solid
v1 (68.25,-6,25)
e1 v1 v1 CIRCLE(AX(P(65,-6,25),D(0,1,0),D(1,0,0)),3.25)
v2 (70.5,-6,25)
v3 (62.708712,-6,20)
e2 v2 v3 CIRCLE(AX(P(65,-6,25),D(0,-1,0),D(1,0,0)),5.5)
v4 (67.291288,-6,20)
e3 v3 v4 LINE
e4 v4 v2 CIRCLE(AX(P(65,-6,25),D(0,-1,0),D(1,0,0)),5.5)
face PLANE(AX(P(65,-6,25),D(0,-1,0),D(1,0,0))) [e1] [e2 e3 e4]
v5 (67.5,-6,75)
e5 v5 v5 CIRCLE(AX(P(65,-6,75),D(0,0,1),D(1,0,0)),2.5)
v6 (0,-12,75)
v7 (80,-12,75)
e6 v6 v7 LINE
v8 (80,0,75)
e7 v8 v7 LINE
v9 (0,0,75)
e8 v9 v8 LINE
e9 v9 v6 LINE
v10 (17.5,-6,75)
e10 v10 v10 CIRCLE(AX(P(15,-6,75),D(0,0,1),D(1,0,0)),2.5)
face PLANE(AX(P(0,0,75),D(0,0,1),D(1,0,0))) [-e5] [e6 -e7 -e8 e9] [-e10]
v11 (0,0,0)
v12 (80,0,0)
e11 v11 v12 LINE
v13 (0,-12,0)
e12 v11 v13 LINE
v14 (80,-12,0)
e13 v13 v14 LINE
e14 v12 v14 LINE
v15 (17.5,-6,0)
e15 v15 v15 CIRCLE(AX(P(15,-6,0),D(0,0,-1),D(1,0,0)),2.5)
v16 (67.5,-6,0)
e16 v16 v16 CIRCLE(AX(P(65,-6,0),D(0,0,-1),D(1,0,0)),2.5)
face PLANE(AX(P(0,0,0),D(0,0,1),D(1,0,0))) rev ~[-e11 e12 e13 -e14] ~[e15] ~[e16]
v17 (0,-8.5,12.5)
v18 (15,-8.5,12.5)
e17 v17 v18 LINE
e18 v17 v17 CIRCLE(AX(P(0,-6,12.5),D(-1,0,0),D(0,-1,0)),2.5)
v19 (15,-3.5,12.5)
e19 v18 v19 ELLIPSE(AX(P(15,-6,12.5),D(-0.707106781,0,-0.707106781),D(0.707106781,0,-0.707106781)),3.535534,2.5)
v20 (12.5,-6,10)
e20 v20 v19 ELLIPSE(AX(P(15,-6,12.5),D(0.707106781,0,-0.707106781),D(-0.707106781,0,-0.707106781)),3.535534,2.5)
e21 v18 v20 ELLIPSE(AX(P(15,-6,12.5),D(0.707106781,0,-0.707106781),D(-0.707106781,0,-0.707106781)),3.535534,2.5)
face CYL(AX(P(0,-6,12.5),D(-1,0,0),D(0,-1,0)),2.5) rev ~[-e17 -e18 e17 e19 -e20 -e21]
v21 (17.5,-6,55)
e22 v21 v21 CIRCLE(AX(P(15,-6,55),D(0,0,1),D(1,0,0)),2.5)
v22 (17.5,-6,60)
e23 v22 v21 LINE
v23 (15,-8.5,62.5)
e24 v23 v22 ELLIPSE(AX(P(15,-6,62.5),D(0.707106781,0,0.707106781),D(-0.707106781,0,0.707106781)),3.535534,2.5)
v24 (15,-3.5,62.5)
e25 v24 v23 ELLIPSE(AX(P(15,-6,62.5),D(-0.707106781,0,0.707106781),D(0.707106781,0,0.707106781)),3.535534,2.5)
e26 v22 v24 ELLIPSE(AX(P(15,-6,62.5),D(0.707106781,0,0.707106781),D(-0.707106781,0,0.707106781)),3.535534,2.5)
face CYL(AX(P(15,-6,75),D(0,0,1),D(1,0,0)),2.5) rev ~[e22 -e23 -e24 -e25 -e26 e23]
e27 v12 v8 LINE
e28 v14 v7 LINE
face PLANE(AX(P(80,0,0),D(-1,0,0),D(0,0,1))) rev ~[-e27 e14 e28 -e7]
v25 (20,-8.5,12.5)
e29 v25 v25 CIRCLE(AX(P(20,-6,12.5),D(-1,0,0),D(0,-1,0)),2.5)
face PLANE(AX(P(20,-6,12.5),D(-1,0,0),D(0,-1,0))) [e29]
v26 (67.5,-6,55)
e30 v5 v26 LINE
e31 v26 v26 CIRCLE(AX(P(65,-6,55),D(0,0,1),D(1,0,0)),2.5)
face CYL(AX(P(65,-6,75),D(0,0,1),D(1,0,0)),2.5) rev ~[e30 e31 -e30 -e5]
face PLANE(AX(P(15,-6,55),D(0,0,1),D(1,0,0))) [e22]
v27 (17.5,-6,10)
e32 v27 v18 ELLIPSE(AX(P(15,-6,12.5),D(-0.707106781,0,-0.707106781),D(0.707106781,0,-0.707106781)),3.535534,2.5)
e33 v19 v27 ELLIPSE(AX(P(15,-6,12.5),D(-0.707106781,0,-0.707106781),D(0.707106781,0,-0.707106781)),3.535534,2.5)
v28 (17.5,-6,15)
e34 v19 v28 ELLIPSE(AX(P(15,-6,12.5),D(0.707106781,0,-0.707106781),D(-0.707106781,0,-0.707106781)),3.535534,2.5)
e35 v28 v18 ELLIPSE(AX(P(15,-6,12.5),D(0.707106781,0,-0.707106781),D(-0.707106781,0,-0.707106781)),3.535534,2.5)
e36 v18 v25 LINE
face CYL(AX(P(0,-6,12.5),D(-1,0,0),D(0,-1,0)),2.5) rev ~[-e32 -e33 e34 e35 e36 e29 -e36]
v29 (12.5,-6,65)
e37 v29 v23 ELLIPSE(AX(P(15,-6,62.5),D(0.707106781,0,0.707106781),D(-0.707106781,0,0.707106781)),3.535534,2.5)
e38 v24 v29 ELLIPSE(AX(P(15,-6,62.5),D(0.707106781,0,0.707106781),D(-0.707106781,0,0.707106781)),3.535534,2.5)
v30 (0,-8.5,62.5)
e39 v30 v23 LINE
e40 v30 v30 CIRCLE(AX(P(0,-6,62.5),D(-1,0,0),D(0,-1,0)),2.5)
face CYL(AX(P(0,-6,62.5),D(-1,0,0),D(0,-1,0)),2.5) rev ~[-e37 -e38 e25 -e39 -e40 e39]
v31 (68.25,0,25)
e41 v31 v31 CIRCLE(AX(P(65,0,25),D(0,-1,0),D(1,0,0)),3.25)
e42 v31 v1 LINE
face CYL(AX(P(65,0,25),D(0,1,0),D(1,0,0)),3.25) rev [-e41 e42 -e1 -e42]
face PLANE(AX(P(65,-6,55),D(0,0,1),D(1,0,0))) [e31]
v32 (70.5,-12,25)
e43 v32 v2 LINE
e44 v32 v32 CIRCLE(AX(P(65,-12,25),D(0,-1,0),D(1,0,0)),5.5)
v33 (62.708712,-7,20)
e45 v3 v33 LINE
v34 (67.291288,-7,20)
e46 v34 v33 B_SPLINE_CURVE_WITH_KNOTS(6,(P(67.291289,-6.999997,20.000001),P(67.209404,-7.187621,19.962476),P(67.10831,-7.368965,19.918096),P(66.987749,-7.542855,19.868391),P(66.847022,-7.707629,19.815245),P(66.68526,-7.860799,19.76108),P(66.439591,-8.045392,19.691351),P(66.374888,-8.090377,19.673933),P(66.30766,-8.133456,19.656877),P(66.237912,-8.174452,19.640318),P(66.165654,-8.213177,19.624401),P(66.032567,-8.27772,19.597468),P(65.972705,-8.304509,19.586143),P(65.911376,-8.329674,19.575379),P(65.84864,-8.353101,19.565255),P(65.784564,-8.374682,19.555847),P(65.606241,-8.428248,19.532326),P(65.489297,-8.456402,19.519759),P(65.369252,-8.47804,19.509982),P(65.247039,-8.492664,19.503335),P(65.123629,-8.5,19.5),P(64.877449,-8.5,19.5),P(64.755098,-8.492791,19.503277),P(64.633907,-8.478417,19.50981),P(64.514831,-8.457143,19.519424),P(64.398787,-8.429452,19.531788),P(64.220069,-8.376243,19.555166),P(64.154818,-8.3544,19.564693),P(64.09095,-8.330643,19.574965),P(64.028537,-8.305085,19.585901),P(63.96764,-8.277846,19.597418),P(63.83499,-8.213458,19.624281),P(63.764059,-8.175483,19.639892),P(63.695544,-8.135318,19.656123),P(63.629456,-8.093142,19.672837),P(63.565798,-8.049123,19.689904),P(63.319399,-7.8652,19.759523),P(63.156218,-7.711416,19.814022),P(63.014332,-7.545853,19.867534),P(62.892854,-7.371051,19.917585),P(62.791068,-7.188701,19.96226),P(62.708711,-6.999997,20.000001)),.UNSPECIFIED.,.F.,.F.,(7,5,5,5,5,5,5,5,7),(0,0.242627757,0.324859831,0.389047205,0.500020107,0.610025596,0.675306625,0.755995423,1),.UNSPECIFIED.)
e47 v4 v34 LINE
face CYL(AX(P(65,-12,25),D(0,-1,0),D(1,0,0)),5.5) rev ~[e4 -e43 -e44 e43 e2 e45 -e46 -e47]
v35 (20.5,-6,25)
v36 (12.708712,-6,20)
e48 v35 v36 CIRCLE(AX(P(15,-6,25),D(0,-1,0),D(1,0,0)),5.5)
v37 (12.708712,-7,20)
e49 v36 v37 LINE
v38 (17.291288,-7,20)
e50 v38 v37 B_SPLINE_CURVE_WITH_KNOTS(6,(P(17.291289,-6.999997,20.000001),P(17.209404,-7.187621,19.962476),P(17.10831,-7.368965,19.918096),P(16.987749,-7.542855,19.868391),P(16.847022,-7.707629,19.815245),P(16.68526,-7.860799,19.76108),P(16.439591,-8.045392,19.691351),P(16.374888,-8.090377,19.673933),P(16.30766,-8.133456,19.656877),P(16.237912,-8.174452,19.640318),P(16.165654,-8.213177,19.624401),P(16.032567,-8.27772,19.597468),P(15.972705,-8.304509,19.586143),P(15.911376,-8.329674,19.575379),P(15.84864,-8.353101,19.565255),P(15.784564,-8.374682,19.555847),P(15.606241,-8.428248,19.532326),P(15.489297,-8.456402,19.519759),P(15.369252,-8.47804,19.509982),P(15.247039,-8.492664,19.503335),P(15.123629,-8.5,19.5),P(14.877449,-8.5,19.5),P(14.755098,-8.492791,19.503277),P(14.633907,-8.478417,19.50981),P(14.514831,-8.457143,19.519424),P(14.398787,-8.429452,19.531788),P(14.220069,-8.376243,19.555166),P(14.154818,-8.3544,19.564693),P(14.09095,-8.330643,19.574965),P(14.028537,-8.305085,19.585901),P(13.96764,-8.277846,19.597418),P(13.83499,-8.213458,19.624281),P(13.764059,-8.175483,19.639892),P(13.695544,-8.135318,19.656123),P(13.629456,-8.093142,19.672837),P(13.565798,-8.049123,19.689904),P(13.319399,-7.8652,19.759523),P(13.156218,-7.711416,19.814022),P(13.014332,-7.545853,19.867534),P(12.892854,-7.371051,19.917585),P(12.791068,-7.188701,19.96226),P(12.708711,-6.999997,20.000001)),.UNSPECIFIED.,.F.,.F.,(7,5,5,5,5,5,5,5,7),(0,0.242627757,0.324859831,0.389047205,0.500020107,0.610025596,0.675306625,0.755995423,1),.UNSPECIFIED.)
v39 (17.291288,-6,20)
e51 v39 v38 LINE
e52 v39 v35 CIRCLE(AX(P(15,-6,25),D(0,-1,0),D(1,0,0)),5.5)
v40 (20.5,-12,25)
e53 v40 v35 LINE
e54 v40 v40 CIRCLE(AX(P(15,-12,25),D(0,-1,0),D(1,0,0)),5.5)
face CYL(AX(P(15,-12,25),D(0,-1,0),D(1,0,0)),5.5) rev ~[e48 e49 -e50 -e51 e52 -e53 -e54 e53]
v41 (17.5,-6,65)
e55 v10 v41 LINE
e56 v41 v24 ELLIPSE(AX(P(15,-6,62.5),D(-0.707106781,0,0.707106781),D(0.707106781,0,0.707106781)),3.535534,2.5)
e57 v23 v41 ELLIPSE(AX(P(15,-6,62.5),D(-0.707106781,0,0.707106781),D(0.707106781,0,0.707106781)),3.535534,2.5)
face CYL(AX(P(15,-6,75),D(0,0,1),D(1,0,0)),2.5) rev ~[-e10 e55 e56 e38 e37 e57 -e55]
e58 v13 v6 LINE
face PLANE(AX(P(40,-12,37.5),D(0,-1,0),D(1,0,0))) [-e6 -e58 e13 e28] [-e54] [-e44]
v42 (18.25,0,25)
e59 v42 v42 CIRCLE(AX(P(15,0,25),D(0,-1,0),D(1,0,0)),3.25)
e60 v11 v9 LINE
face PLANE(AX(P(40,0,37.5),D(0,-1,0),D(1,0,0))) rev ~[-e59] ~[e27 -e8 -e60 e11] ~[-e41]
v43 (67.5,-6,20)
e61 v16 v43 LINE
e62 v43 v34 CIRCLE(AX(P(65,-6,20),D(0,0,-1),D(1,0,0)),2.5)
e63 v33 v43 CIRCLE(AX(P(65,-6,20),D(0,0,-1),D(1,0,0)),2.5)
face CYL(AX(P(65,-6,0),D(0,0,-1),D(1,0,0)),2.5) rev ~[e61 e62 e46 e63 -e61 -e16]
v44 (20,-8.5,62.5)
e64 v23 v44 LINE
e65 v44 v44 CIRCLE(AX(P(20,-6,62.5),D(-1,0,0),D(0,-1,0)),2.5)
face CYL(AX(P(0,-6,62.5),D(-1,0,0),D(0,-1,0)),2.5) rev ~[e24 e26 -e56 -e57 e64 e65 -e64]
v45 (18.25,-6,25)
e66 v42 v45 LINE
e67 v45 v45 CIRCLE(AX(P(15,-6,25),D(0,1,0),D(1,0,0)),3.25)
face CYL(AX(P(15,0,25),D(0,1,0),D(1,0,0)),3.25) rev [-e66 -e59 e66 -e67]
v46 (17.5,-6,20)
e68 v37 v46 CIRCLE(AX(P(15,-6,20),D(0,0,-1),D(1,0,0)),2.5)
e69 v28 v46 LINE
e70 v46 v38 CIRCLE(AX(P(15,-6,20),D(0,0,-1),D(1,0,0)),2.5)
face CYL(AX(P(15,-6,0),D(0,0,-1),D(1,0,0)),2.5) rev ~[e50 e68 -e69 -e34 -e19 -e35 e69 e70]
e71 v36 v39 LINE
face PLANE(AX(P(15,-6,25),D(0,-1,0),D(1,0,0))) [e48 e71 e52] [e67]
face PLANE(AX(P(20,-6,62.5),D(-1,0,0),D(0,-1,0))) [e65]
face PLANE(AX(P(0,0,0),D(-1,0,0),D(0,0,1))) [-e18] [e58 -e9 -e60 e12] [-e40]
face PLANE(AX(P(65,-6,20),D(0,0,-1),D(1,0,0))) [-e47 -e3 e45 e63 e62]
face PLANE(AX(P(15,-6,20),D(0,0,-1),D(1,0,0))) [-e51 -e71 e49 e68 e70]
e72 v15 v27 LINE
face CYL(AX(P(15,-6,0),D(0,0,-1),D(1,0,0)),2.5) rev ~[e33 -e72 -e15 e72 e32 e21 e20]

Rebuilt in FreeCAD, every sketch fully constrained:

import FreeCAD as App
import Part
import Sketcher


def add_polygon(sketch, points):
    """Adds a closed chain of lines whose ends are joined by coincident constraints."""
    first, n = sketch.GeometryCount, len(points)
    for a, b in zip(points, points[1:] + points[:1]):
        sketch.addGeometry(Part.LineSegment(App.Vector(*a, 0), App.Vector(*b, 0)), False)
    for i in range(n):
        sketch.addConstraint(Sketcher.Constraint("Coincident", first + i, 2, first + (i + 1) % n, 1))

doc = App.newDocument("Part")
body = doc.addObject("PartDesign::Body", "Body")

# Sketch on XZ plane
sketch1 = body.newObject("Sketcher::SketchObject", "Sketch")
sketch1.AttachmentSupport = (doc.getObject("XZ_Plane"), [""])
sketch1.MapMode = "FlatFace"
add_polygon(sketch1, [(0, 75), (0, 0), (80, 0), (80, 75)])  # lines 0-3
sketch1.addGeometry(Part.Circle(App.Vector(15, 25, 0), App.Vector(0, 0, 1), 3.2), False)  # 4
sketch1.addGeometry(Part.Circle(App.Vector(65, 25, 0), App.Vector(0, 0, 1), 3.2), False)  # 5
sketch1.addConstraint([
    Sketcher.Constraint("Vertical", 0),
    Sketcher.Constraint("Horizontal", 1),
    Sketcher.Constraint("Vertical", 2),
    Sketcher.Constraint("Horizontal", 3),
    Sketcher.Constraint("Coincident", 0, 2, -1, 1),
    Sketcher.Constraint("Equal", 4, 5),
    Sketcher.Constraint("Horizontal", 4, 3, 5, 3),
    Sketcher.Constraint("Diameter", 4, 6.5),
    Sketcher.Constraint("DistanceX", 1, 1, 1, 2, 80.0),
    Sketcher.Constraint("DistanceY", 0, 2, 0, 1, 75.0),
    Sketcher.Constraint("DistanceX", -1, 1, 4, 3, 15.0),
    Sketcher.Constraint("DistanceY", -1, 1, 4, 3, 25.0),
    Sketcher.Constraint("DistanceX", -1, 1, 5, 3, 65.0),
])
pad1 = body.newObject("PartDesign::Pad", "Pad")
pad1.Profile = sketch1
pad1.Length = 12

# Sketch on XZ plane
sketch2 = body.newObject("Sketcher::SketchObject", "Sketch001")
sketch2.AttachmentSupport = (doc.getObject("XZ_Plane"), [""])
sketch2.MapMode = "FlatFace"
sketch2.AttachmentOffset = App.Placement(App.Vector(0, 0, 12), App.Rotation())
sketch2.addGeometry([
    Part.Circle(App.Vector(15, 25, 0), App.Vector(0, 0, 1), 6),
    Part.Circle(App.Vector(65, 25, 0), App.Vector(0, 0, 1), 6),
], False)
sketch2.addConstraint([
    Sketcher.Constraint("Equal", 0, 1),
    Sketcher.Constraint("Horizontal", 0, 3, 1, 3),
    Sketcher.Constraint("Diameter", 0, 11.0),
    Sketcher.Constraint("DistanceX", -1, 1, 0, 3, 15.0),
    Sketcher.Constraint("DistanceY", -1, 1, 0, 3, 25.0),
    Sketcher.Constraint("DistanceX", -1, 1, 1, 3, 65.0),
])
pocket1 = body.newObject("PartDesign::Pocket", "Pocket")
pocket1.Profile = sketch2
pocket1.Length = 6

# Sketch on XY plane
sketch3 = body.newObject("Sketcher::SketchObject", "Sketch002")
sketch3.AttachmentSupport = (doc.getObject("XY_Plane"), [""])
sketch3.MapMode = "FlatFace"
sketch3.addGeometry([
    Part.Circle(App.Vector(15, -6, 0), App.Vector(0, 0, 1), 2.5),
    Part.Circle(App.Vector(65, -6, 0), App.Vector(0, 0, 1), 2.5),
], False)
sketch3.addConstraint([
    Sketcher.Constraint("Equal", 0, 1),
    Sketcher.Constraint("Horizontal", 0, 3, 1, 3),
    Sketcher.Constraint("Diameter", 0, 5.0),
    Sketcher.Constraint("DistanceX", -1, 1, 0, 3, 15.0),
    Sketcher.Constraint("DistanceY", 0, 3, -1, 1, 6.0),
    Sketcher.Constraint("DistanceX", -1, 1, 1, 3, 65.0),
])
pocket2 = body.newObject("PartDesign::Pocket", "Pocket001")
pocket2.Profile = sketch3
pocket2.Length = 20
pocket2.Reversed = True

# Sketch on XY plane
sketch4 = body.newObject("Sketcher::SketchObject", "Sketch003")
sketch4.AttachmentSupport = (doc.getObject("XY_Plane"), [""])
sketch4.MapMode = "FlatFace"
sketch4.AttachmentOffset = App.Placement(App.Vector(0, 0, 75), App.Rotation())
sketch4.addGeometry([
    Part.Circle(App.Vector(15, -6, 0), App.Vector(0, 0, 1), 2.5),
    Part.Circle(App.Vector(65, -6, 0), App.Vector(0, 0, 1), 2.5),
], False)
sketch4.addConstraint([
    Sketcher.Constraint("Equal", 0, 1),
    Sketcher.Constraint("Horizontal", 0, 3, 1, 3),
    Sketcher.Constraint("Diameter", 0, 5.0),
    Sketcher.Constraint("DistanceX", -1, 1, 0, 3, 15.0),
    Sketcher.Constraint("DistanceY", 0, 3, -1, 1, 6.0),
    Sketcher.Constraint("DistanceX", -1, 1, 1, 3, 65.0),
])
pocket3 = body.newObject("PartDesign::Pocket", "Pocket002")
pocket3.Profile = sketch4
pocket3.Length = 20

# Sketch on YZ plane
sketch5 = body.newObject("Sketcher::SketchObject", "Sketch004")
sketch5.AttachmentSupport = (doc.getObject("YZ_Plane"), [""])
sketch5.MapMode = "FlatFace"
sketch5.addGeometry([
    Part.Circle(App.Vector(-6, 62.5, 0), App.Vector(0, 0, 1), 2.5),
    Part.Circle(App.Vector(-6, 12.5, 0), App.Vector(0, 0, 1), 2.5),
], False)
sketch5.addConstraint([
    Sketcher.Constraint("Equal", 0, 1),
    Sketcher.Constraint("Vertical", 0, 3, 1, 3),
    Sketcher.Constraint("Diameter", 0, 5.0),
    Sketcher.Constraint("DistanceX", 0, 3, -1, 1, 6.0),
    Sketcher.Constraint("DistanceY", 1, 3, 0, 3, 50.0),
    Sketcher.Constraint("DistanceY", -1, 1, 0, 3, 62.5),
])
pocket4 = body.newObject("PartDesign::Pocket", "Pocket003")
pocket4.Profile = sketch5
pocket4.Length = 20
pocket4.Reversed = True

doc.recompute()
